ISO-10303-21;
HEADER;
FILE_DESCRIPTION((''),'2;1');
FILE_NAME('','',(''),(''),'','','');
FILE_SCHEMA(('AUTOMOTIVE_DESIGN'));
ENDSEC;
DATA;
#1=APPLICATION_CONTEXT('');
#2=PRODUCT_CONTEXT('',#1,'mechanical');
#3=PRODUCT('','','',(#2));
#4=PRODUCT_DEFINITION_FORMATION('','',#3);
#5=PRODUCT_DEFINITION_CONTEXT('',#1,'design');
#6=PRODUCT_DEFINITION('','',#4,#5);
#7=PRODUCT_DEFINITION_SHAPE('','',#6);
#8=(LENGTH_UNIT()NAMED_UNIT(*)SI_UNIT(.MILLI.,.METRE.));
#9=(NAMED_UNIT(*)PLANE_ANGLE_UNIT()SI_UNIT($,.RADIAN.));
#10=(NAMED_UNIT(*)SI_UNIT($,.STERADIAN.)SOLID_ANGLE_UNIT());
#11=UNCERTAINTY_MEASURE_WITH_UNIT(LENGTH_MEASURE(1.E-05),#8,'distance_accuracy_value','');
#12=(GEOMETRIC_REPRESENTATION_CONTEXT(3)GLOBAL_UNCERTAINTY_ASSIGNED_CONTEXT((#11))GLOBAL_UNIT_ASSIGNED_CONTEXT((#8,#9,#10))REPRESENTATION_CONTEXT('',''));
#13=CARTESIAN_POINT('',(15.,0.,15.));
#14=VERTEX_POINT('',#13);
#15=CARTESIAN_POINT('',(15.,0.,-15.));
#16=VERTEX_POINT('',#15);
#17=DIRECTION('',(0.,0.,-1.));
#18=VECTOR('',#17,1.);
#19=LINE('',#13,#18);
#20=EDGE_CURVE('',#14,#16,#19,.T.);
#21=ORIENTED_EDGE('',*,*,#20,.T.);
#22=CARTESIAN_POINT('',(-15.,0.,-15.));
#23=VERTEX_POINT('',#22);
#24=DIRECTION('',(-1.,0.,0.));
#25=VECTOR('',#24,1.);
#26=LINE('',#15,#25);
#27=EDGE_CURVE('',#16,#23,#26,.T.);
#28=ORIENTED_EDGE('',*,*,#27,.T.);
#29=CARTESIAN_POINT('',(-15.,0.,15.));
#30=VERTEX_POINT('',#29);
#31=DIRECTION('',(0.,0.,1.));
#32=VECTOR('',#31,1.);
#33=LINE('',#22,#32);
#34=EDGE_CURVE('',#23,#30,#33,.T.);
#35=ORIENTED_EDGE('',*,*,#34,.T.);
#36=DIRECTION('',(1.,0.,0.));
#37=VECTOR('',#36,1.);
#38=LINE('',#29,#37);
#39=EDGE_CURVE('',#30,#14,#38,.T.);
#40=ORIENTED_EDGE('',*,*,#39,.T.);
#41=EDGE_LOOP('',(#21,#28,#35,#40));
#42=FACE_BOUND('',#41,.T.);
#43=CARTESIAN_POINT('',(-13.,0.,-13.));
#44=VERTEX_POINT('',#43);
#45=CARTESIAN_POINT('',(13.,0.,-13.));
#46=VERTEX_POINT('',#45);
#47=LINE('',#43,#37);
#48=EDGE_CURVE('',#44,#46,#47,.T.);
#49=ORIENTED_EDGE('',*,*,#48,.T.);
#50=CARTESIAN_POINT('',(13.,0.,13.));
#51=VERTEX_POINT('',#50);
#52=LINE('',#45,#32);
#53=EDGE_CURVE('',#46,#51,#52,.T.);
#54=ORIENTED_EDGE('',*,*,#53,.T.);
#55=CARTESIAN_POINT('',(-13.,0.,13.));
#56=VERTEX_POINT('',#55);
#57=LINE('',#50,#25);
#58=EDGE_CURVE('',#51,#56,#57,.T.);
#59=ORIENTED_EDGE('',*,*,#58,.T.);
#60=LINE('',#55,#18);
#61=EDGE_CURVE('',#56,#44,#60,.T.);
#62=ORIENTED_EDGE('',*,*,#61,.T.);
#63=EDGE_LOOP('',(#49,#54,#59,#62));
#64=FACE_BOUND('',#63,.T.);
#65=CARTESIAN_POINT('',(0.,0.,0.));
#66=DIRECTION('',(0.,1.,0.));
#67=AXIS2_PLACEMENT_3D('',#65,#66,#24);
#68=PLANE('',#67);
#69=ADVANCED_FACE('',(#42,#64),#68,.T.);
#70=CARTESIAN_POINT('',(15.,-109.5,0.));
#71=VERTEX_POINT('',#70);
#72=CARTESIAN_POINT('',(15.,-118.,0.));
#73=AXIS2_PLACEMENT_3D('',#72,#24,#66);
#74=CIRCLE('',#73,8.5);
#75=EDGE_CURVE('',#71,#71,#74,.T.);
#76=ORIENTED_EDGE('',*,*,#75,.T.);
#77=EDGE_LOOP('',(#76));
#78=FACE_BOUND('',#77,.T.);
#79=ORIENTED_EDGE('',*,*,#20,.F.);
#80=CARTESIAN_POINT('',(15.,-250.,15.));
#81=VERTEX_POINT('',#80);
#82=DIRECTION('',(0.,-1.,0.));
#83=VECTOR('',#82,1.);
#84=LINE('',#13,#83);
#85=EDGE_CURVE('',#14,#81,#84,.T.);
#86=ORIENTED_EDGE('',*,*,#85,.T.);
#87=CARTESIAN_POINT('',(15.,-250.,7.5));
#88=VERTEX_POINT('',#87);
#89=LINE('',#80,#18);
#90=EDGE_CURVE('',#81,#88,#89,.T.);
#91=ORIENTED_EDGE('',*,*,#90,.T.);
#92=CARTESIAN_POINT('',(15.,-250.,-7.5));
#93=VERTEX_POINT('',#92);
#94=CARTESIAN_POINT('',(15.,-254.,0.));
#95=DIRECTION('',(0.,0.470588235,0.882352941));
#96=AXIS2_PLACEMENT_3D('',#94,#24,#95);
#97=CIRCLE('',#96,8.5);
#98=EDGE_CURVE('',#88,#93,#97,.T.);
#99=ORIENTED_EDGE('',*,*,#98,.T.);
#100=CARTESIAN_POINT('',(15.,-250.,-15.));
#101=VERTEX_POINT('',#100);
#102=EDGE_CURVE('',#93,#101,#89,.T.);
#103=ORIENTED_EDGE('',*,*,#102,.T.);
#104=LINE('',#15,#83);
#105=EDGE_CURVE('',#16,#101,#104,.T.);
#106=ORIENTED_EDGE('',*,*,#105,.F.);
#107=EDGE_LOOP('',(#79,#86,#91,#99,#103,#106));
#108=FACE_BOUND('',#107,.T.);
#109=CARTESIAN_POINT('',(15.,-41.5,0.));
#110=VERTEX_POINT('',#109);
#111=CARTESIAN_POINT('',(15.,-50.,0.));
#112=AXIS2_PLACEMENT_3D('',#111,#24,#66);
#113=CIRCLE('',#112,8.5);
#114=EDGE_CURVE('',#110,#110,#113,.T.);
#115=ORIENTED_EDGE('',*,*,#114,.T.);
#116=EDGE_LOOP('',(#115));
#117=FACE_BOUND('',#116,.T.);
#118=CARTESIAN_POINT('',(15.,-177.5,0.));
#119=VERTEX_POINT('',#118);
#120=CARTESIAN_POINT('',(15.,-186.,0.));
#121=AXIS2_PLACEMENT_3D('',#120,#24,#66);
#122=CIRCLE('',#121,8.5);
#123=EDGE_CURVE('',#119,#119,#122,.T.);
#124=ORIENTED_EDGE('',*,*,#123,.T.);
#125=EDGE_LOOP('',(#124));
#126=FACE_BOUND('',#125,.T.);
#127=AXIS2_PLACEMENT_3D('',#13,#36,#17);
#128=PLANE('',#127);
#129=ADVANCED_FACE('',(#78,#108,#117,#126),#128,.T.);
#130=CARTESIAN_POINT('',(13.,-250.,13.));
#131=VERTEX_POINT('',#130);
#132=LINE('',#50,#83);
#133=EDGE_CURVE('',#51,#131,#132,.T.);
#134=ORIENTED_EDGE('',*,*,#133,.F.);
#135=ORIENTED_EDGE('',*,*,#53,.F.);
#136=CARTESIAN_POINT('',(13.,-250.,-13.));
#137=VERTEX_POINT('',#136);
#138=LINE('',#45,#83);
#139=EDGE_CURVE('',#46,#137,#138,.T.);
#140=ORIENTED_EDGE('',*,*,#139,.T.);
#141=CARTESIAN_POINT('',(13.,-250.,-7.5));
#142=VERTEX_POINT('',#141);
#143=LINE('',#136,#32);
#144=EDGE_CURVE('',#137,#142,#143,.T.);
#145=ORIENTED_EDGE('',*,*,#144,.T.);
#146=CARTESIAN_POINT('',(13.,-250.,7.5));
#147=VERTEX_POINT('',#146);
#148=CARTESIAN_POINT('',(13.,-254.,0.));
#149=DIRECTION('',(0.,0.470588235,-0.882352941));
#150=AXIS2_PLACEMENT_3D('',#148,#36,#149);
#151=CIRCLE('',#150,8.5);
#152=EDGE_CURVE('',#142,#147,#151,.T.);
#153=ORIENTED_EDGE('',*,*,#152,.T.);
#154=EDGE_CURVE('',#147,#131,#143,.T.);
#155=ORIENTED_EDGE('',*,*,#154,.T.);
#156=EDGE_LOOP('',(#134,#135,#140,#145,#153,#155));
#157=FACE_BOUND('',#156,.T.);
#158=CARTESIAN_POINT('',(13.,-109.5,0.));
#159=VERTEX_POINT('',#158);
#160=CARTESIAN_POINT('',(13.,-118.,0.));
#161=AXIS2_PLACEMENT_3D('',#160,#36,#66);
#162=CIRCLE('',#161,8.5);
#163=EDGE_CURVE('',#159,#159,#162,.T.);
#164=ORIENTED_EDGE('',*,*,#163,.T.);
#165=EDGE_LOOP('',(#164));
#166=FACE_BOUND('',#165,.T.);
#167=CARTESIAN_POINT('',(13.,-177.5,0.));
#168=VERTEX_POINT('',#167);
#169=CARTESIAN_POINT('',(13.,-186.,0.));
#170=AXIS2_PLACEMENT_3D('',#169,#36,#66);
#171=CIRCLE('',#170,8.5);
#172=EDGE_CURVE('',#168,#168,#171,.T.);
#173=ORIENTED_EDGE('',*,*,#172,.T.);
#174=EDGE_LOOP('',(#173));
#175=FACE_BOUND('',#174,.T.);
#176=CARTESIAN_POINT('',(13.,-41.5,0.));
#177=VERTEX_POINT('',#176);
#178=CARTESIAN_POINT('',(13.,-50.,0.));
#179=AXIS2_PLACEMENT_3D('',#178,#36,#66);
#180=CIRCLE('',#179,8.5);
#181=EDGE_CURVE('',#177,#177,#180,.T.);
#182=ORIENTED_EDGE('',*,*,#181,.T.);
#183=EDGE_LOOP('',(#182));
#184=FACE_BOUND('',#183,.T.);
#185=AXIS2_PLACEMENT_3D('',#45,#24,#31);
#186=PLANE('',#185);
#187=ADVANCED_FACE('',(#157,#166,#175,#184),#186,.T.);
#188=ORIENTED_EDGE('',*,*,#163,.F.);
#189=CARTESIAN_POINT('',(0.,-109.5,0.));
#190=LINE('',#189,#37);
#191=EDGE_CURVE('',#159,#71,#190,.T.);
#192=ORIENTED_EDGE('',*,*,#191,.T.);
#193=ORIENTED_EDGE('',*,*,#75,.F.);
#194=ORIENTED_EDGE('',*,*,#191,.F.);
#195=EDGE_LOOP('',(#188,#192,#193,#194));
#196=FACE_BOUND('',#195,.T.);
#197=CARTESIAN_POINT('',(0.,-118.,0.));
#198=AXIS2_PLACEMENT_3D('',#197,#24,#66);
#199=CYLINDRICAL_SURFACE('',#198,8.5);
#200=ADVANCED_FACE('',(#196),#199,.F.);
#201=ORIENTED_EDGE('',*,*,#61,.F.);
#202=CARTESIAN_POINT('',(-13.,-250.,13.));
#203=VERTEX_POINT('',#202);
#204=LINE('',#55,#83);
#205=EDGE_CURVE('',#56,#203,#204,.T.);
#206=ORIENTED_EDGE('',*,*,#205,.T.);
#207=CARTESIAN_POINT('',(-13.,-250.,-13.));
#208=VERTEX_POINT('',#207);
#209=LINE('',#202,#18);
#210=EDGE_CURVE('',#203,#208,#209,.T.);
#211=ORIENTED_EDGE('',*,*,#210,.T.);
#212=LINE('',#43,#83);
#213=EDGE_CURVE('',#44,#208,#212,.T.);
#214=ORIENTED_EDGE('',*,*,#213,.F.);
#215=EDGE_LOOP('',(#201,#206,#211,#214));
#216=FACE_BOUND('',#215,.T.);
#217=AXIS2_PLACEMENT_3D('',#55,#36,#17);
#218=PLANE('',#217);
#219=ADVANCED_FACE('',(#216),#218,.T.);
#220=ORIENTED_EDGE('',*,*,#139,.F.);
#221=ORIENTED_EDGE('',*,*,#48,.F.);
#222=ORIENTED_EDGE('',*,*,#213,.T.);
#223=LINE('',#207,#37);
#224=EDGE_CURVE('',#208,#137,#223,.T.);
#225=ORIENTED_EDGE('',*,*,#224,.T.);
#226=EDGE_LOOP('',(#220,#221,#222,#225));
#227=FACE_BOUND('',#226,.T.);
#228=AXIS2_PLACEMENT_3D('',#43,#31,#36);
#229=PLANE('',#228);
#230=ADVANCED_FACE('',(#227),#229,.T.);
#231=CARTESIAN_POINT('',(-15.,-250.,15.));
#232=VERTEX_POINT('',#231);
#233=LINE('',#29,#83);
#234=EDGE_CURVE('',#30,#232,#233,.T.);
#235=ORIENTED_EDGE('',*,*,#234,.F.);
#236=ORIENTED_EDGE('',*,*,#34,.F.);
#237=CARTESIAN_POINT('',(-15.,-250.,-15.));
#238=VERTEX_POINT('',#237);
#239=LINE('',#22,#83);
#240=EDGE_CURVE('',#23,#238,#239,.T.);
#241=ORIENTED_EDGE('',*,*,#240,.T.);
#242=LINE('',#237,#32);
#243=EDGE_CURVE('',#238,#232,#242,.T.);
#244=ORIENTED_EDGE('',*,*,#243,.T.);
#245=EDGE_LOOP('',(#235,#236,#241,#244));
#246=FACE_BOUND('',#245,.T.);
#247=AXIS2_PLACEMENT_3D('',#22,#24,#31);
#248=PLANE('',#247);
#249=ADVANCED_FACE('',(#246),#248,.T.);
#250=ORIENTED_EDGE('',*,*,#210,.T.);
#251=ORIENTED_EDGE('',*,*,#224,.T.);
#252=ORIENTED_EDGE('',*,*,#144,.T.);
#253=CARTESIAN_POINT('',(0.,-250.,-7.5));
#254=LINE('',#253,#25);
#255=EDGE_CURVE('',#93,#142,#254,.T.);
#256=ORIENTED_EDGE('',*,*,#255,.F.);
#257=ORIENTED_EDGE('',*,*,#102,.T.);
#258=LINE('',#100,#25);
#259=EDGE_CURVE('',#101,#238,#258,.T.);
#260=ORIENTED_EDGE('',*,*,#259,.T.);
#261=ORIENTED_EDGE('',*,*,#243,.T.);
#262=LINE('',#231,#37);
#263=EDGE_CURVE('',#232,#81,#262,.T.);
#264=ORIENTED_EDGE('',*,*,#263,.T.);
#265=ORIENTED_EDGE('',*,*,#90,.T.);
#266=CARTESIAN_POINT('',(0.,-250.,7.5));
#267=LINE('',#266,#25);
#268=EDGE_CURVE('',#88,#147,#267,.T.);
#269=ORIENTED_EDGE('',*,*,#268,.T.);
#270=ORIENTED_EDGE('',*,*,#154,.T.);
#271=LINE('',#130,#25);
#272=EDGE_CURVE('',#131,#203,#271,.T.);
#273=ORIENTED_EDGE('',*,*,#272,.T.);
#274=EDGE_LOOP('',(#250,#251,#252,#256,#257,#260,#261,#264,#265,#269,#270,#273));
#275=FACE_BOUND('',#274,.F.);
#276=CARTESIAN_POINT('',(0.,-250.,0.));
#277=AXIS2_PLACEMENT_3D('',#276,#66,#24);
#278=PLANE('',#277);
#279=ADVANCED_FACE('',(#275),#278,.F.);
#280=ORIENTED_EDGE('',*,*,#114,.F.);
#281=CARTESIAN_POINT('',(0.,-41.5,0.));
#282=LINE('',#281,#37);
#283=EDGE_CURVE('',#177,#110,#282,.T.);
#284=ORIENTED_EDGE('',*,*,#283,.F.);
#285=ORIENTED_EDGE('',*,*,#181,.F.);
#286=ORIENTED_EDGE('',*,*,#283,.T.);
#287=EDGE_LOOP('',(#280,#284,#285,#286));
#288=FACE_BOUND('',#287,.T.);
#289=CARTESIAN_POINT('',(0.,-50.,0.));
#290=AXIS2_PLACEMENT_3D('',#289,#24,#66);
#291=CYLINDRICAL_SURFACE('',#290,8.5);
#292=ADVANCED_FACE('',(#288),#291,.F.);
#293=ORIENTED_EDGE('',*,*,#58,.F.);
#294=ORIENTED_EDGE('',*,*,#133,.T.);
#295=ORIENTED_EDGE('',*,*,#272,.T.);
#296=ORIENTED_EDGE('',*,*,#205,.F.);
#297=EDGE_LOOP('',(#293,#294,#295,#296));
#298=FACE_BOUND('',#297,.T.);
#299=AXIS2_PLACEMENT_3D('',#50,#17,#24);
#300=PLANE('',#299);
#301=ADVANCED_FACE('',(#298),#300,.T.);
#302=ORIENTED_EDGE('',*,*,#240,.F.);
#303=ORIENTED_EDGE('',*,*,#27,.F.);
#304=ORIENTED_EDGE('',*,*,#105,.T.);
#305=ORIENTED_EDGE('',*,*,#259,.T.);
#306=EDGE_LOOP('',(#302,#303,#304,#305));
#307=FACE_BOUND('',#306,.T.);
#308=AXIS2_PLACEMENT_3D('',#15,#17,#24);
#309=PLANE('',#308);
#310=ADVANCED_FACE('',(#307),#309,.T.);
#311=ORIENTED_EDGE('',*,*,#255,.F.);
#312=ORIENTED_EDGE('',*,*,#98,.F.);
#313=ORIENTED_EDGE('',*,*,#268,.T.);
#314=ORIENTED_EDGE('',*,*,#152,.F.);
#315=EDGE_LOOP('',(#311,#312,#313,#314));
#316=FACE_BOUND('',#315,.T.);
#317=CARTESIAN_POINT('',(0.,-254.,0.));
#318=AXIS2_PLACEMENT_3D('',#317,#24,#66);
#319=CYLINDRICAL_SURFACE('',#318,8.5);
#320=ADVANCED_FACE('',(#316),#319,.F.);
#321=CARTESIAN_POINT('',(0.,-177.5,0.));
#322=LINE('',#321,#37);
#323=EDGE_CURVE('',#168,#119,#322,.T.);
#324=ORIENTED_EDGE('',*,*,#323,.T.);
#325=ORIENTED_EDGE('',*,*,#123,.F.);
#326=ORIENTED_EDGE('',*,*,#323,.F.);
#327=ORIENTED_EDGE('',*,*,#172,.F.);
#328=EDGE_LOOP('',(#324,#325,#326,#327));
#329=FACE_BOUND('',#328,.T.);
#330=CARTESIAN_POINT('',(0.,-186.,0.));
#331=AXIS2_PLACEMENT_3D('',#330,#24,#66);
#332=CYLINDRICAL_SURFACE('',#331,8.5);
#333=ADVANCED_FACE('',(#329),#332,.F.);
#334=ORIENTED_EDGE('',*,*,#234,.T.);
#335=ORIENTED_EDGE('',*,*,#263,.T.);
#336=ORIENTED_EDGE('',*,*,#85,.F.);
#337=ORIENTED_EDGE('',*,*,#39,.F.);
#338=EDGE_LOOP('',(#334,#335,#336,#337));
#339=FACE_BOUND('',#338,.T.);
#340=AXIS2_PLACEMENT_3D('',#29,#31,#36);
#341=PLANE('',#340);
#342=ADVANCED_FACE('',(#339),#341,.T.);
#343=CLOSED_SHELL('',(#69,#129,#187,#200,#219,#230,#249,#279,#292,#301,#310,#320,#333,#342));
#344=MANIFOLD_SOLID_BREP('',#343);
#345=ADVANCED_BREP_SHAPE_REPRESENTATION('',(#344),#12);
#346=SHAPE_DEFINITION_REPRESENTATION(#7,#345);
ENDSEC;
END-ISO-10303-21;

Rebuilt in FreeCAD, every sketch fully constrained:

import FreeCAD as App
import Part
import Sketcher
from FreeCAD import Vector

doc = App.newDocument("Part")
body = doc.addObject("PartDesign::Body", "Body")

# Sketch on XZ plane
sketch1 = body.newObject("Sketcher::SketchObject", "Sketch")
sketch1.AttachmentSupport = (doc.getObject("XZ_Plane"), [""])
sketch1.MapMode = "FlatFace"
sketch1.addGeometry(Part.LineSegment(Vector(-15, -15, 0), Vector(-15, 15, 0)), False)
sketch1.addGeometry(Part.LineSegment(Vector(-15, 15, 0), Vector(15, 15, 0)), False)
sketch1.addGeometry(Part.LineSegment(Vector(15, 15, 0), Vector(15, -15, 0)), False)
sketch1.addGeometry(Part.LineSegment(Vector(15, -15, 0), Vector(-15, -15, 0)), False)
sketch1.addGeometry(Part.LineSegment(Vector(13, -13, 0), Vector(13, 13, 0)), False)
sketch1.addGeometry(Part.LineSegment(Vector(13, 13, 0), Vector(-13, 13, 0)), False)
sketch1.addGeometry(Part.LineSegment(Vector(-13, 13, 0), Vector(-13, -13, 0)), False)
sketch1.addGeometry(Part.LineSegment(Vector(-13, -13, 0), Vector(13, -13, 0)), False)
sketch1.addConstraint(Sketcher.Constraint("Coincident", 0, 2, 1, 1))
sketch1.addConstraint(Sketcher.Constraint("Coincident", 1, 2, 2, 1))
sketch1.addConstraint(Sketcher.Constraint("Coincident", 2, 2, 3, 1))
sketch1.addConstraint(Sketcher.Constraint("Coincident", 3, 2, 0, 1))
sketch1.addConstraint(Sketcher.Constraint("Coincident", 4, 2, 5, 1))
sketch1.addConstraint(Sketcher.Constraint("Coincident", 5, 2, 6, 1))
sketch1.addConstraint(Sketcher.Constraint("Coincident", 6, 2, 7, 1))
sketch1.addConstraint(Sketcher.Constraint("Coincident", 7, 2, 4, 1))
sketch1.addConstraint(Sketcher.Constraint("Vertical", 0))
sketch1.addConstraint(Sketcher.Constraint("Horizontal", 1))
sketch1.addConstraint(Sketcher.Constraint("Vertical", 2))
sketch1.addConstraint(Sketcher.Constraint("Horizontal", 3))
sketch1.addConstraint(Sketcher.Constraint("Vertical", 4))
sketch1.addConstraint(Sketcher.Constraint("Horizontal", 5))
sketch1.addConstraint(Sketcher.Constraint("Vertical", 6))
sketch1.addConstraint(Sketcher.Constraint("Horizontal", 7))
sketch1.addConstraint(Sketcher.Constraint("Symmetric", 0, 2, 2, 2, -1, 1))
sketch1.addConstraint(Sketcher.Constraint("Symmetric", 4, 2, 6, 2, -1, 1))
sketch1.addConstraint(Sketcher.Constraint("Equal", 3, 0))
sketch1.addConstraint(Sketcher.Constraint("Equal", 7, 4))
sketch1.addConstraint(Sketcher.Constraint("DistanceX", 1, 1, 1, 2, 30.0))
sketch1.addConstraint(Sketcher.Constraint("DistanceX", 4, 2, 1, 2, 2.0))
pad1 = body.newObject("PartDesign::Pad", "Pad")
pad1.Profile = sketch1
pad1.Length = 250

# Sketch on YZ plane
sketch2 = body.newObject("Sketcher::SketchObject", "Sketch001")
sketch2.AttachmentSupport = (doc.getObject("YZ_Plane"), [""])
sketch2.MapMode = "FlatFace"
sketch2.addGeometry(Part.Circle(Vector(-50, 0, 0), Vector(0, 0, 1), 8), False)
sketch2.addConstraint(Sketcher.Constraint("PointOnObject", 0, 3, -1))
sketch2.addConstraint(Sketcher.Constraint("Diameter", 0, 17.0))
sketch2.addConstraint(Sketcher.Constraint("DistanceX", 0, 3, -1, 1, 50.0))
pocket1 = body.newObject("PartDesign::Pocket", "Pocket")
pocket1.Profile = sketch2
pocket1.Type = "ThroughAll"
pocket1.Reversed = True
doc.recompute()

linearpattern = body.newObject("PartDesign::LinearPattern", "LinearPattern")
linearpattern.Originals = [pocket1]
linearpattern.Direction = (doc.getObject("Y_Axis"), [""])
linearpattern.Mode = "offset"
linearpattern.Offset = 68
linearpattern.Occurrences = 4
linearpattern.Reversed = True
body.Tip = linearpattern

doc.recompute()
